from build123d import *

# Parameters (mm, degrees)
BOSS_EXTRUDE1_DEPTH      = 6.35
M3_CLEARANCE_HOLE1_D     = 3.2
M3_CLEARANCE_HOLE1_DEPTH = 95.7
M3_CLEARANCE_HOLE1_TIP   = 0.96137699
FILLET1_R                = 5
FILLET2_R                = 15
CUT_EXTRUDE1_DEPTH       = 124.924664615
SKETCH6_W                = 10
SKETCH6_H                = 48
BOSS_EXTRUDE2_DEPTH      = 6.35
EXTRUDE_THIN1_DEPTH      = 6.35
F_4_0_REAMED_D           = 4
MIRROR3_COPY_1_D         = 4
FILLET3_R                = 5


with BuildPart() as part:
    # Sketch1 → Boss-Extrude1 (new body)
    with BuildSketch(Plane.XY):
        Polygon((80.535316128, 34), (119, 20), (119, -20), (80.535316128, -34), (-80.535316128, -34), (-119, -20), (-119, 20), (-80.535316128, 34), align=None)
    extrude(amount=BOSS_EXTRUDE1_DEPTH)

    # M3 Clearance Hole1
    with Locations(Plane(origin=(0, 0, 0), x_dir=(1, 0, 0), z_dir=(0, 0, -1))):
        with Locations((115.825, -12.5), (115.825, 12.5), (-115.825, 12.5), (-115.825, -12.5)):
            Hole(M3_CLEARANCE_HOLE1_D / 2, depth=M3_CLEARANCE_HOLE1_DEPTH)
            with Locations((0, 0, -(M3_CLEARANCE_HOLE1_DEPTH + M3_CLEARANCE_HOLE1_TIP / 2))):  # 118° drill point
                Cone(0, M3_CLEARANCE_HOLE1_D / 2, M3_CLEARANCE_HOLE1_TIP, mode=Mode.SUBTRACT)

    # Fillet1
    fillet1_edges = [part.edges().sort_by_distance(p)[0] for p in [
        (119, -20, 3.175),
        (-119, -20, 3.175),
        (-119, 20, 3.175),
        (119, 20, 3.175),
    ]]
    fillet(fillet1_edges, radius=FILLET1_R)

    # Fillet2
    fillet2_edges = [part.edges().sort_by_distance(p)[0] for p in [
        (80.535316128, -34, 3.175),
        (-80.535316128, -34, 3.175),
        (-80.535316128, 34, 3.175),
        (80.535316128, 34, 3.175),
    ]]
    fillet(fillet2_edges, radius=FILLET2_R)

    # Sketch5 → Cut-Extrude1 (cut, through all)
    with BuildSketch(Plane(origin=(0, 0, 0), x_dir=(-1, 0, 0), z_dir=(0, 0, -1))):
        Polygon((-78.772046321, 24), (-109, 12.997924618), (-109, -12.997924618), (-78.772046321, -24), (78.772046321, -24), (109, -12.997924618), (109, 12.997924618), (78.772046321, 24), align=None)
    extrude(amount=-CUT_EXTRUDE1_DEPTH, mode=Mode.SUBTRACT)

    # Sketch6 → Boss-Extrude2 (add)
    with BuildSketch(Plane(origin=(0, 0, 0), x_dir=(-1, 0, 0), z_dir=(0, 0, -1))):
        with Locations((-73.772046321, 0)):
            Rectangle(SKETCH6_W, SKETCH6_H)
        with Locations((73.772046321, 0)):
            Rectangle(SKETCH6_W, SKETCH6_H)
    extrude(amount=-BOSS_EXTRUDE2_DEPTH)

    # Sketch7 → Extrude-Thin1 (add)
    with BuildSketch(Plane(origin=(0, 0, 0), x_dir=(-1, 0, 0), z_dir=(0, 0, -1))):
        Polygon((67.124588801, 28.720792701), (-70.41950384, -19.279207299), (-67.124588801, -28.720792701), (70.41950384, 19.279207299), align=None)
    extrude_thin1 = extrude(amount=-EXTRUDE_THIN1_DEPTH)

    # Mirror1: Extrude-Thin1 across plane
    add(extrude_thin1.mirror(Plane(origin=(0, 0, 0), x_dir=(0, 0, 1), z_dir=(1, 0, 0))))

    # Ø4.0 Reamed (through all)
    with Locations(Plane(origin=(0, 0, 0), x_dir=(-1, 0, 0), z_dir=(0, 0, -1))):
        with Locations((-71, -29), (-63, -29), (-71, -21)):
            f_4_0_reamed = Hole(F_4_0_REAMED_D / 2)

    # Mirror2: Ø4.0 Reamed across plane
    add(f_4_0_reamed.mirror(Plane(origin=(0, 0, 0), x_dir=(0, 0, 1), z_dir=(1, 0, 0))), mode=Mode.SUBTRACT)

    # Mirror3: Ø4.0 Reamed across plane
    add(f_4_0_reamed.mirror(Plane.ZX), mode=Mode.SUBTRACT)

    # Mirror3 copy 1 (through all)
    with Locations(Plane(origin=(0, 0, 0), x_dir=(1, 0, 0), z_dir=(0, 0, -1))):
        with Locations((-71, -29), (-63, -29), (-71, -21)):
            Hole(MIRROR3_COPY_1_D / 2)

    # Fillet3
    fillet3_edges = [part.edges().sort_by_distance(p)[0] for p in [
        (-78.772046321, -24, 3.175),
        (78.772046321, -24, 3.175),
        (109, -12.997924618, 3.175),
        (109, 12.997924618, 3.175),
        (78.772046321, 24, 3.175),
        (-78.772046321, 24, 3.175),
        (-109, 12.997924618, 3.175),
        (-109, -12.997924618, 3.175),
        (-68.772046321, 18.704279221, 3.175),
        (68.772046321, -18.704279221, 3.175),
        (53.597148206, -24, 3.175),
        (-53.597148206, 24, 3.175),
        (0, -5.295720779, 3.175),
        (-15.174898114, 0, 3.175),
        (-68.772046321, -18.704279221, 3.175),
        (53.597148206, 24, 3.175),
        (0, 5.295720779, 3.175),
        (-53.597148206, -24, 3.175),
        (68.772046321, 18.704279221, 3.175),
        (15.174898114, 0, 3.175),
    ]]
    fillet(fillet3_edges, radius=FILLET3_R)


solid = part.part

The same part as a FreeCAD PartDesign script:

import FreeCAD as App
import Part
import Sketcher

V = App.Vector
Q = App.Units.Quantity


def edges_at(feature, points):
    """Names of the edges that pass closest to the given points."""
    edges = feature.Shape.Edges
    near = lambda p: min(range(len(edges)), key=lambda i: edges[i].distToShape(Part.Vertex(*p))[0])
    return sorted({f"Edge{near(p) + 1}" for p in points})

doc = App.newDocument("Part")
body = doc.addObject("PartDesign::Body", "Body")

# Sketch on XY plane
sketch1 = doc.addObject("Sketcher::SketchObject", "Sketch")
body.addObject(sketch1)
sketch1.AttachmentSupport = (doc.XY_Plane, [""])
sketch1.MapMode = "FlatFace"
sketch1.addGeometry(Part.LineSegment(V(119, 20, 0), V(81, 34, 0)), False)
sketch1.addGeometry(Part.LineSegment(V(81, 34, 0), V(-81, 34, 0)), False)
sketch1.addGeometry(Part.LineSegment(V(-81, 34, 0), V(-119, 20, 0)), False)
sketch1.addGeometry(Part.LineSegment(V(-119, 20, 0), V(-119, -20, 0)), False)
sketch1.addGeometry(Part.LineSegment(V(-119, -20, 0), V(-81, -34, 0)), False)
sketch1.addGeometry(Part.LineSegment(V(-81, -34, 0), V(81, -34, 0)), False)
sketch1.addGeometry(Part.LineSegment(V(81, -34, 0), V(119, -20, 0)), False)
sketch1.addGeometry(Part.LineSegment(V(119, -20, 0), V(119, 20, 0)), False)
sketch1.addConstraint(Sketcher.Constraint("Coincident", 0, 2, 1, 1))
sketch1.addConstraint(Sketcher.Constraint("Coincident", 1, 2, 2, 1))
sketch1.addConstraint(Sketcher.Constraint("Coincident", 2, 2, 3, 1))
sketch1.addConstraint(Sketcher.Constraint("Coincident", 3, 2, 4, 1))
sketch1.addConstraint(Sketcher.Constraint("Coincident", 4, 2, 5, 1))
sketch1.addConstraint(Sketcher.Constraint("Coincident", 5, 2, 6, 1))
sketch1.addConstraint(Sketcher.Constraint("Coincident", 6, 2, 7, 1))
sketch1.addConstraint(Sketcher.Constraint("Coincident", 7, 2, 0, 1))
sketch1.addConstraint(Sketcher.Constraint("Horizontal", 1))
sketch1.addConstraint(Sketcher.Constraint("Vertical", 3))
sketch1.addConstraint(Sketcher.Constraint("Horizontal", 5))
sketch1.addConstraint(Sketcher.Constraint("Vertical", 7))
sketch1.addConstraint(Sketcher.Constraint("Symmetric", 0, 2, 4, 2, -1, 1))
sketch1.addConstraint(Sketcher.Constraint("Symmetric", 2, 2, 6, 2, -1, 1))
sketch1.addConstraint(Sketcher.Constraint("Parallel", 0, 4))
sketch1.addConstraint(Sketcher.Constraint("Parallel", 2, 6))
sketch1.addConstraint(Sketcher.Constraint("Horizontal", 3, 2, 6, 2))
sketch1.addConstraint(Sketcher.Constraint("Vertical", 1, 2, 4, 2))
sketch1.addConstraint(Sketcher.Constraint("DistanceY", 3, 2, 3, 1, Q("40 mm")))
sketch1.addConstraint(Sketcher.Constraint("Angle", 0, Q("160 deg")))
sketch1.addConstraint(Sketcher.Constraint("DistanceY", -1, 1, 0, 2, Q("34 mm")))
sketch1.addConstraint(Sketcher.Constraint("DistanceX", 2, 2, -1, 1, Q("119 mm")))
pad1 = doc.addObject("PartDesign::Pad", "Pad")
body.addObject(pad1)
pad1.Profile = sketch1
pad1.Length = 6.35

# Sketch on XY plane
sketch2 = doc.addObject("Sketcher::SketchObject", "Sketch001")
body.addObject(sketch2)
sketch2.AttachmentSupport = (doc.XY_Plane, [""])
sketch2.MapMode = "FlatFace"
sketch2.addGeometry(Part.Circle(V(115.8, 12.5, 0), V(0, 0, 1), 1.6), False)
sketch2.addGeometry(Part.Circle(V(115.8, -12.5, 0), V(0, 0, 1), 1.6), False)
sketch2.addGeometry(Part.Circle(V(-115.8, -12.5, 0), V(0, 0, 1), 1.6), False)
sketch2.addGeometry(Part.Circle(V(-115.8, 12.5, 0), V(0, 0, 1), 1.6), False)
sketch2.addConstraint(Sketcher.Constraint("Equal", 0, 1))
sketch2.addConstraint(Sketcher.Constraint("Equal", 1, 2))
sketch2.addConstraint(Sketcher.Constraint("Equal", 2, 3))
sketch2.addConstraint(Sketcher.Constraint("Symmetric", 0, 3, 2, 3, -1, 1))
sketch2.addConstraint(Sketcher.Constraint("Symmetric", 1, 3, 3, 3, -1, 1))
sketch2.addConstraint(Sketcher.Constraint("Symmetric", 1, 3, 2, 3, -2))
sketch2.addConstraint(Sketcher.Constraint("Diameter", 0, Q("3.2 mm")))
sketch2.addConstraint(Sketcher.Constraint("DistanceY", 1, 3, 0, 3, Q("25 mm")))
sketch2.addConstraint(Sketcher.Constraint("DistanceX", 2, 3, 1, 3, Q("231.65 mm")))
doc.recompute()
hole = doc.addObject("PartDesign::Hole", "Hole")
body.addObject(hole)
hole.Profile = sketch2
hole.ThreadType = "None"
hole.Diameter = 3.2
hole.DepthType = "Dimension"
hole.Depth = 95.7
hole.DrillPoint = "Angled"
hole.DrillPointAngle = 118
hole.Reversed = True
doc.recompute()

fillet = doc.addObject("PartDesign::Fillet", "Fillet")
body.addObject(fillet)
fillet.Base = (hole, edges_at(hole, [
    (119, -20, 3.175),
    (-119, -20, 3.175),
    (-119, 20, 3.175),
    (119, 20, 3.175),
]))
fillet.Radius = 5
doc.recompute()

fillet2 = doc.addObject("PartDesign::Fillet", "Fillet001")
body.addObject(fillet2)
fillet2.Base = (fillet, edges_at(fillet, [
    (80.535, -34, 3.175),
    (-80.535, -34, 3.175),
    (-80.535, 34, 3.175),
    (80.535, 34, 3.175),
]))
fillet2.Radius = 15

# Sketch on XY plane
sketch3 = doc.addObject("Sketcher::SketchObject", "Sketch002")
body.addObject(sketch3)
sketch3.AttachmentSupport = (doc.XY_Plane, [""])
sketch3.MapMode = "FlatFace"
sketch3.addGeometry(Part.LineSegment(V(79, 24, 0), V(109, 13, 0)), False)
sketch3.addGeometry(Part.LineSegment(V(109, 13, 0), V(109, -13, 0)), False)
sketch3.addGeometry(Part.LineSegment(V(109, -13, 0), V(79, -24, 0)), False)
sketch3.addGeometry(Part.LineSegment(V(79, -24, 0), V(-79, -24, 0)), False)
sketch3.addGeometry(Part.LineSegment(V(-79, -24, 0), V(-109, -13, 0)), False)
sketch3.addGeometry(Part.LineSegment(V(-109, -13, 0), V(-109, 13, 0)), False)
sketch3.addGeometry(Part.LineSegment(V(-109, 13, 0), V(-79, 24, 0)), False)
sketch3.addGeometry(Part.LineSegment(V(-79, 24, 0), V(79, 24, 0)), False)
sketch3.addConstraint(Sketcher.Constraint("Coincident", 0, 2, 1, 1))
sketch3.addConstraint(Sketcher.Constraint("Coincident", 1, 2, 2, 1))
sketch3.addConstraint(Sketcher.Constraint("Coincident", 2, 2, 3, 1))
sketch3.addConstraint(Sketcher.Constraint("Coincident", 3, 2, 4, 1))
sketch3.addConstraint(Sketcher.Constraint("Coincident", 4, 2, 5, 1))
sketch3.addConstraint(Sketcher.Constraint("Coincident", 5, 2, 6, 1))
sketch3.addConstraint(Sketcher.Constraint("Coincident", 6, 2, 7, 1))
sketch3.addConstraint(Sketcher.Constraint("Coincident", 7, 2, 0, 1))
sketch3.addConstraint(Sketcher.Constraint("Vertical", 1))
sketch3.addConstraint(Sketcher.Constraint("Horizontal", 3))
sketch3.addConstraint(Sketcher.Constraint("Vertical", 5))
sketch3.addConstraint(Sketcher.Constraint("Horizontal", 7))
sketch3.addConstraint(Sketcher.Constraint("Symmetric", 0, 2, 4, 2, -1, 1))
sketch3.addConstraint(Sketcher.Constraint("Symmetric", 2, 2, 6, 2, -1, 1))
sketch3.addConstraint(Sketcher.Constraint("Parallel", 0, 4))
sketch3.addConstraint(Sketcher.Constraint("Parallel", 2, 6))
sketch3.addConstraint(Sketcher.Constraint("Horizontal", 1, 2, 4, 2))
sketch3.addConstraint(Sketcher.Constraint("Vertical", 3, 2, 6, 2))
sketch3.addConstraint(Sketcher.Constraint("Angle", 0, Q("-20 deg")))
sketch3.addConstraint(Sketcher.Constraint("DistanceX", -1, 1, 0, 2, Q("109 mm")))
sketch3.addConstraint(Sketcher.Constraint("DistanceY", 2, 2, -1, 1, Q("24 mm")))
sketch3.addConstraint(Sketcher.Constraint("DistanceY", 1, 2, 1, 1, Q("25.995849 mm")))
pocket1 = doc.addObject("PartDesign::Pocket", "Pocket")
body.addObject(pocket1)
pocket1.Profile = sketch3
pocket1.Type = "ThroughAll"
pocket1.Reversed = True

# Sketch on XY plane
sketch4 = doc.addObject("Sketcher::SketchObject", "Sketch003")
body.addObject(sketch4)
sketch4.AttachmentSupport = (doc.XY_Plane, [""])
sketch4.MapMode = "FlatFace"
sketch4.addGeometry(Part.LineSegment(V(79, 24, 0), V(79, -24, 0)), False)
sketch4.addGeometry(Part.LineSegment(V(79, -24, 0), V(69, -24, 0)), False)
sketch4.addGeometry(Part.LineSegment(V(69, -24, 0), V(69, 24, 0)), False)
sketch4.addGeometry(Part.LineSegment(V(69, 24, 0), V(79, 24, 0)), False)
sketch4.addGeometry(Part.LineSegment(V(-69, 24, 0), V(-69, -24, 0)), False)
sketch4.addGeometry(Part.LineSegment(V(-69, -24, 0), V(-79, -24, 0)), False)
sketch4.addGeometry(Part.LineSegment(V(-79, -24, 0), V(-79, 24, 0)), False)
sketch4.addGeometry(Part.LineSegment(V(-79, 24, 0), V(-69, 24, 0)), False)
sketch4.addConstraint(Sketcher.Constraint("Coincident", 0, 2, 1, 1))
sketch4.addConstraint(Sketcher.Constraint("Coincident", 1, 2, 2, 1))
sketch4.addConstraint(Sketcher.Constraint("Coincident", 2, 2, 3, 1))
sketch4.addConstraint(Sketcher.Constraint("Coincident", 3, 2, 0, 1))
sketch4.addConstraint(Sketcher.Constraint("Coincident", 4, 2, 5, 1))
sketch4.addConstraint(Sketcher.Constraint("Coincident", 5, 2, 6, 1))
sketch4.addConstraint(Sketcher.Constraint("Coincident", 6, 2, 7, 1))
sketch4.addConstraint(Sketcher.Constraint("Coincident", 7, 2, 4, 1))
sketch4.addConstraint(Sketcher.Constraint("Vertical", 0))
sketch4.addConstraint(Sketcher.Constraint("Horizontal", 1))
sketch4.addConstraint(Sketcher.Constraint("Vertical", 2))
sketch4.addConstraint(Sketcher.Constraint("Horizontal", 3))
sketch4.addConstraint(Sketcher.Constraint("Vertical", 4))
sketch4.addConstraint(Sketcher.Constraint("Horizontal", 5))
sketch4.addConstraint(Sketcher.Constraint("Vertical", 6))
sketch4.addConstraint(Sketcher.Constraint("Horizontal", 7))
sketch4.addConstraint(Sketcher.Constraint("Symmetric", 2, 2, 4, 2, -1, 1))
sketch4.addConstraint(Sketcher.Constraint("Symmetric", 0, 2, 6, 2, -1, 1))
sketch4.addConstraint(Sketcher.Constraint("Horizontal", 1, 2, 4, 2))
sketch4.addConstraint(Sketcher.Constraint("DistanceX", 1, 2, 1, 1, Q("10 mm")))
sketch4.addConstraint(Sketcher.Constraint("DistanceY", 0, 2, 0, 1, Q("48 mm")))
sketch4.addConstraint(Sketcher.Constraint("DistanceX", -1, 1, 0, 2, Q("78.772046 mm")))
pad2 = doc.addObject("PartDesign::Pad", "Pad001")
body.addObject(pad2)
pad2.Profile = sketch4
pad2.Length = 6.35

# Sketch on XY plane
sketch5 = doc.addObject("Sketcher::SketchObject", "Sketch004")
body.addObject(sketch5)
sketch5.AttachmentSupport = (doc.XY_Plane, [""])
sketch5.MapMode = "FlatFace"
sketch5.addGeometry(Part.LineSegment(V(-67, 29, 0), V(70, -19, 0)), False)
sketch5.addGeometry(Part.LineSegment(V(70, -19, 0), V(67, -29, 0)), False)
sketch5.addGeometry(Part.LineSegment(V(67, -29, 0), V(-70, 19, 0)), False)
sketch5.addGeometry(Part.LineSegment(V(-70, 19, 0), V(-67, 29, 0)), False)
sketch5.addConstraint(Sketcher.Constraint("Coincident", 0, 2, 1, 1))
sketch5.addConstraint(Sketcher.Constraint("Coincident", 1, 2, 2, 1))
sketch5.addConstraint(Sketcher.Constraint("Coincident", 2, 2, 3, 1))
sketch5.addConstraint(Sketcher.Constraint("Coincident", 3, 2, 0, 1))
sketch5.addConstraint(Sketcher.Constraint("Symmetric", 0, 2, 2, 2, -1, 1))
sketch5.addConstraint(Sketcher.Constraint("Symmetric", 1, 2, 3, 2, -1, 1))
sketch5.addConstraint(Sketcher.Constraint("Perpendicular", 0, 1))
sketch5.addConstraint(Sketcher.Constraint("Distance", 1, Q("10 mm")))
sketch5.addConstraint(Sketcher.Constraint("DistanceY", 1, 2, 2, 2, Q("48 mm")))
sketch5.addConstraint(Sketcher.Constraint("Distance", 0, Q("145.679022 mm")))
pad3 = doc.addObject("PartDesign::Pad", "Pad002")
body.addObject(pad3)
pad3.Profile = sketch5
pad3.Length = 6.35
doc.recompute()

mirrored = doc.addObject("PartDesign::Mirrored", "Mirrored")
body.addObject(mirrored)
mirrored.Originals = [pad3]
mirrored.MirrorPlane = (doc.YZ_Plane, [""])
body.Tip = mirrored

# Sketch on XY plane
sketch6 = doc.addObject("Sketcher::SketchObject", "Sketch005")
body.addObject(sketch6)
sketch6.AttachmentSupport = (doc.XY_Plane, [""])
sketch6.MapMode = "FlatFace"
sketch6.addGeometry(Part.Circle(V(71, -29, 0), V(0, 0, 1), 2), False)
sketch6.addGeometry(Part.Circle(V(63, -29, 0), V(0, 0, 1), 2), False)
sketch6.addGeometry(Part.Circle(V(71, -21, 0), V(0, 0, 1), 2), False)
sketch6.addConstraint(Sketcher.Constraint("Equal", 0, 1))
sketch6.addConstraint(Sketcher.Constraint("Equal", 1, 2))
sketch6.addConstraint(Sketcher.Constraint("Horizontal", 0, 3, 1, 3))
sketch6.addConstraint(Sketcher.Constraint("Vertical", 0, 3, 2, 3))
sketch6.addConstraint(Sketcher.Constraint("Diameter", 0, Q("4 mm")))
sketch6.addConstraint(Sketcher.Constraint("DistanceX", -1, 1, 0, 3, Q("71 mm")))
sketch6.addConstraint(Sketcher.Constraint("DistanceY", 0, 3, -1, 1, Q("29 mm")))
sketch6.addConstraint(Sketcher.Constraint("DistanceX", -1, 1, 1, 3, Q("63 mm")))
sketch6.addConstraint(Sketcher.Constraint("DistanceY", 2, 3, -1, 1, Q("21 mm")))
doc.recompute()
hole2 = doc.addObject("PartDesign::Hole", "Hole001")
body.addObject(hole2)
hole2.Profile = sketch6
hole2.ThreadType = "None"
hole2.Diameter = 4
hole2.DepthType = "ThroughAll"
hole2.Reversed = True
doc.recompute()

mirrored2 = doc.addObject("PartDesign::Mirrored", "Mirrored001")
body.addObject(mirrored2)
mirrored2.Originals = [hole2]
mirrored2.MirrorPlane = (doc.YZ_Plane, [""])
body.Tip = mirrored2
doc.recompute()

mirrored3 = doc.addObject("PartDesign::Mirrored", "Mirrored002")
body.addObject(mirrored3)
mirrored3.Originals = [hole2]
mirrored3.MirrorPlane = (doc.XZ_Plane, [""])
body.Tip = mirrored3

# Sketch on XY plane
sketch7 = doc.addObject("Sketcher::SketchObject", "Sketch006")
body.addObject(sketch7)
sketch7.AttachmentSupport = (doc.XY_Plane, [""])
sketch7.MapMode = "FlatFace"
sketch7.addGeometry(Part.Circle(V(-71, 29, 0), V(0, 0, 1), 2), False)
sketch7.addGeometry(Part.Circle(V(-63, 29, 0), V(0, 0, 1), 2), False)
sketch7.addGeometry(Part.Circle(V(-71, 21, 0), V(0, 0, 1), 2), False)
sketch7.addConstraint(Sketcher.Constraint("Equal", 0, 1))
sketch7.addConstraint(Sketcher.Constraint("Equal", 1, 2))
sketch7.addConstraint(Sketcher.Constraint("Horizontal", 0, 3, 1, 3))
sketch7.addConstraint(Sketcher.Constraint("Vertical", 0, 3, 2, 3))
sketch7.addConstraint(Sketcher.Constraint("Diameter", 0, Q("4 mm")))
sketch7.addConstraint(Sketcher.Constraint("DistanceX", 0, 3, -1, 1, Q("71 mm")))
sketch7.addConstraint(Sketcher.Constraint("DistanceY", -1, 1, 0, 3, Q("29 mm")))
sketch7.addConstraint(Sketcher.Constraint("DistanceX", 1, 3, -1, 1, Q("63 mm")))
sketch7.addConstraint(Sketcher.Constraint("DistanceY", -1, 1, 2, 3, Q("21 mm")))
doc.recompute()
hole3 = doc.addObject("PartDesign::Hole", "Hole002")
body.addObject(hole3)
hole3.Profile = sketch7
hole3.ThreadType = "None"
hole3.Diameter = 4
hole3.DepthType = "ThroughAll"
hole3.Reversed = True
doc.recompute()

fillet3 = doc.addObject("PartDesign::Fillet", "Fillet002")
body.addObject(fillet3)
fillet3.Base = (hole3, edges_at(hole3, [
    (-78.772, -24, 3.175),
    (78.772, -24, 3.175),
    (109, -12.998, 3.175),
    (109, 12.998, 3.175),
    (78.772, 24, 3.175),
    (-78.772, 24, 3.175),
    (-109, 12.998, 3.175),
    (-109, -12.998, 3.175),
    (-68.772, 18.704, 3.175),
    (68.772, -18.704, 3.175),
    (53.597, -24, 3.175),
    (-53.597, 24, 3.175),
    (0, -5.296, 3.175),
    (-15.175, 0, 3.175),
    (-68.772, -18.704, 3.175),
    (53.597, 24, 3.175),
    (0, 5.296, 3.175),
    (-53.597, -24, 3.175),
    (68.772, 18.704, 3.175),
    (15.175, 0, 3.175),
]))
fillet3.Radius = 5

doc.recompute()
